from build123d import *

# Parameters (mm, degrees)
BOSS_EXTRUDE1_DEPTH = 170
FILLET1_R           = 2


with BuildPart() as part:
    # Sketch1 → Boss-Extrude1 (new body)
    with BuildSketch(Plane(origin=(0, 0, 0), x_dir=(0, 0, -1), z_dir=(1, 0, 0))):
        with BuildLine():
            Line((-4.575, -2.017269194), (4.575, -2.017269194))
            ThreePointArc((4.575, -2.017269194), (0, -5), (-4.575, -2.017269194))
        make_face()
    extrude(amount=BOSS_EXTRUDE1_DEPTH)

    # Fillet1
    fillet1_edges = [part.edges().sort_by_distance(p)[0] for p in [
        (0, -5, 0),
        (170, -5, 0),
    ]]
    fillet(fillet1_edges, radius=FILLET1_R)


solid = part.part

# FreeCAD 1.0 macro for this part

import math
import FreeCAD as App
import Part
import Sketcher

V = App.Vector


def edges_at(feature, points):
    """Names of the edges that pass closest to the given points."""
    edges = feature.Shape.Edges
    near = lambda p: min(range(len(edges)), key=lambda i: edges[i].distToShape(Part.Vertex(*p))[0])
    return sorted({f"Edge{near(p) + 1}" for p in points})

doc = App.newDocument("Part")
body = doc.addObject("PartDesign::Body", "Body")

sketch1 = doc.addObject("Sketcher::SketchObject", "Sketch")
body.addObject(sketch1)
sketch1.AttachmentSupport = (doc.YZ_Plane, [""])
sketch1.MapMode = "FlatFace"
sketch1.addGeometry([
    Part.LineSegment(V(-2.017269, -4.575, 0), V(-2.017269, 4.575, 0)),
    Part.ArcOfCircle(Part.Circle(V(0, 0, 0), V(0, 0, 1), 5), math.radians(113.794273), math.radians(246.205727)),
], False)
sketch1.addConstraint([
    Sketcher.Constraint("Coincident", 0, 1, 1, 2),
    Sketcher.Constraint("Coincident", 1, 1, 0, 2),
    Sketcher.Constraint("Vertical", 0),
    Sketcher.Constraint("Coincident", 1, 3, -1, 1),
    Sketcher.Constraint("Radius", 1, 5.0),
    Sketcher.Constraint("DistanceY", 0, 1, 0, 2, 9.15),
])
pad1 = doc.addObject("PartDesign::Pad", "Pad")
body.addObject(pad1)
pad1.Profile = sketch1
pad1.Length = 170
doc.recompute()

fillet = doc.addObject("PartDesign::Fillet", "Fillet")
body.addObject(fillet)
fillet.Base = (pad1, edges_at(pad1, [(0, -5, 0), (170, -5, 0)]))
fillet.Radius = 2

doc.recompute()
